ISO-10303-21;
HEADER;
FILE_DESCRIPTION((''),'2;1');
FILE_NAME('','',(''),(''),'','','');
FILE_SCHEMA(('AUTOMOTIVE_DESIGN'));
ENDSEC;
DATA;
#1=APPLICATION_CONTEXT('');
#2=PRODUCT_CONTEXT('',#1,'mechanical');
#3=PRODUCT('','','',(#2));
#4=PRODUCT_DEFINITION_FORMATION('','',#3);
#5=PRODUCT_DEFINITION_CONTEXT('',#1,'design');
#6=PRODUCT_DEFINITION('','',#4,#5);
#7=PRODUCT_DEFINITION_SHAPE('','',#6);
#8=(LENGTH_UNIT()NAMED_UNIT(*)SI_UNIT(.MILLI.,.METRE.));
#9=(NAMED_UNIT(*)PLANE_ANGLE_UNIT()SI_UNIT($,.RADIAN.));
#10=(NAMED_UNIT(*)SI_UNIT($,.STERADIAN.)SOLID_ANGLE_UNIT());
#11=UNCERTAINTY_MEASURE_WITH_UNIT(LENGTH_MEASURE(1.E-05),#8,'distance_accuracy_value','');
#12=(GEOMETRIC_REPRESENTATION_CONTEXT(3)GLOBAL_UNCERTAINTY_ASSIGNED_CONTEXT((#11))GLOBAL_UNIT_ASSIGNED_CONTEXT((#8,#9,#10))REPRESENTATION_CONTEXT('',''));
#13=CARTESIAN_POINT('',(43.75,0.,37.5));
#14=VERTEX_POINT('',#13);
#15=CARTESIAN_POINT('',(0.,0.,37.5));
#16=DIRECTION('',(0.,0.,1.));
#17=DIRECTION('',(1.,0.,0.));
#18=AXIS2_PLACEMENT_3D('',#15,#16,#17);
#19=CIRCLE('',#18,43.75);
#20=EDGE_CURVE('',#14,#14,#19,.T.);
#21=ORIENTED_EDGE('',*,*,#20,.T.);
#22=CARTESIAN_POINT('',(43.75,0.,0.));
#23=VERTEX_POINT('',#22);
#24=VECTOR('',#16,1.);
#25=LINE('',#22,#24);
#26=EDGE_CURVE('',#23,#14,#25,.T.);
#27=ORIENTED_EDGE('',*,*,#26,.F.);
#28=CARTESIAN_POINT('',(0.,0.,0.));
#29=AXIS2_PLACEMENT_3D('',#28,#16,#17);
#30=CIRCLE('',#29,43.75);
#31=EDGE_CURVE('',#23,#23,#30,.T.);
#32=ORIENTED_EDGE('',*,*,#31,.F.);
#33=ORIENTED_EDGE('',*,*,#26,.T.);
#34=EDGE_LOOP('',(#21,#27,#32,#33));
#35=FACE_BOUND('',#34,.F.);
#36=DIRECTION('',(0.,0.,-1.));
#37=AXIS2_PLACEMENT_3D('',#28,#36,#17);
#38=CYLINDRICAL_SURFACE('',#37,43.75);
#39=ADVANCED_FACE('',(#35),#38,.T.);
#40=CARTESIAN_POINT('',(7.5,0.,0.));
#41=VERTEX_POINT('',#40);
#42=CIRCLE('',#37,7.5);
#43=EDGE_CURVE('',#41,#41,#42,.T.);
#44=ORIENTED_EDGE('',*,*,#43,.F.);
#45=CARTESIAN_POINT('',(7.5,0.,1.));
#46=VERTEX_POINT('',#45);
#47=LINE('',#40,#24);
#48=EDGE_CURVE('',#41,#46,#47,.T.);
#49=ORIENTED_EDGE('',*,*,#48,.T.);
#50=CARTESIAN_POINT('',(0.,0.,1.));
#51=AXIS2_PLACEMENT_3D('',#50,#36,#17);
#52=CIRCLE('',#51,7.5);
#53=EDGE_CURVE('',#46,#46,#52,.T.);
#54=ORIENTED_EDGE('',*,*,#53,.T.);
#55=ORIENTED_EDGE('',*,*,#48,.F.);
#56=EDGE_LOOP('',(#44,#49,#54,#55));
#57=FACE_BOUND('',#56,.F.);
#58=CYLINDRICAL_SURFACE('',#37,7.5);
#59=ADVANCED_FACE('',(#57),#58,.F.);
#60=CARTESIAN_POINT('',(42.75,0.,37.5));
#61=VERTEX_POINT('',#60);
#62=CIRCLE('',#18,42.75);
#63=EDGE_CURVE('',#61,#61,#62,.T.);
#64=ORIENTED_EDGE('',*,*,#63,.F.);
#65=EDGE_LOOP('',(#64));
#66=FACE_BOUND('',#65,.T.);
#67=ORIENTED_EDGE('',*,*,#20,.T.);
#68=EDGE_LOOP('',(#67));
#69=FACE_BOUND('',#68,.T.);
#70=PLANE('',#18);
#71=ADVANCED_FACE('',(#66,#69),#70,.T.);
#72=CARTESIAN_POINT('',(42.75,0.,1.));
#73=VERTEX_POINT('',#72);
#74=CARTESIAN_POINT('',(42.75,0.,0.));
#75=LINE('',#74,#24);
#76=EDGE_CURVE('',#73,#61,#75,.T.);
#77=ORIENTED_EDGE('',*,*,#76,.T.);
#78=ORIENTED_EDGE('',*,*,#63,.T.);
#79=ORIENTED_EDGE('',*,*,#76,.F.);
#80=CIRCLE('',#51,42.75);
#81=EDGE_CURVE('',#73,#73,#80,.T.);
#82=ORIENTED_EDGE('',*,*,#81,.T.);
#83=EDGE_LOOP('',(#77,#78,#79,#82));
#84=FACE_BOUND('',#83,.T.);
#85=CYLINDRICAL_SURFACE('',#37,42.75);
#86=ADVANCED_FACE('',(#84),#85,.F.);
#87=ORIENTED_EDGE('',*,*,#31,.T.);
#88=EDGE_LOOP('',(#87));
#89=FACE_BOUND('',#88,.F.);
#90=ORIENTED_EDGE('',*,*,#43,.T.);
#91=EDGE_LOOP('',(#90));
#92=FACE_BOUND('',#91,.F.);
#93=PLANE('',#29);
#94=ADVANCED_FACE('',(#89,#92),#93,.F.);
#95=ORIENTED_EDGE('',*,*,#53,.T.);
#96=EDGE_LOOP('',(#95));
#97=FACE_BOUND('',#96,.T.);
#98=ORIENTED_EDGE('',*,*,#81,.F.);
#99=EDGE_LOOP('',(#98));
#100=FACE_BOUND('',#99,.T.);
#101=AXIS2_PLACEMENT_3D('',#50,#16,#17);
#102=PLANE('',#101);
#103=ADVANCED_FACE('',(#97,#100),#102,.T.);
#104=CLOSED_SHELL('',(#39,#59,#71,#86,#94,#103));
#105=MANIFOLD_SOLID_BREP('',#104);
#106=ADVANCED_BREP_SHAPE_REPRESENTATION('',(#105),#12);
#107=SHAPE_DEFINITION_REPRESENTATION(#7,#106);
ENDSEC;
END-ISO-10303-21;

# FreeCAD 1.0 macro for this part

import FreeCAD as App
import Part
import Sketcher

V = App.Vector


def faces_at(feature, points):
    """Names of the faces that lie closest to the given points."""
    faces = feature.Shape.Faces
    near = lambda p: min(range(len(faces)), key=lambda i: faces[i].distToShape(Part.Vertex(*p))[0])
    return sorted({f"Face{near(p) + 1}" for p in points})

doc = App.newDocument("Part")
params = doc.addObject("Spreadsheet::Sheet", "Params")
for row, (alias, value) in enumerate([
    ("sketch1_diameter", "87.5 mm"),
    ("pad1_length", "37.5 mm"),
    ("thickness_wall", "1 mm"),
    ("sketch2_diameter", "15 mm"),
    ("pocket1_length", "25.4 mm"),
], start=1):
    params.set(f"A{row}", alias)
    params.set(f"B{row}", "=" + value)
    params.setAlias(f"B{row}", alias)

body = doc.addObject("PartDesign::Body", "Body")

# Sketch on XY plane
sketch1 = body.newObject("Sketcher::SketchObject", "Sketch")
sketch1.AttachmentSupport = (doc.getObject("XY_Plane"), [""])
sketch1.MapMode = "FlatFace"
sketch1.addGeometry(Part.Circle(V(0, 0, 0), V(0, 0, 1), 44), False)
sketch1.addConstraint(Sketcher.Constraint("Coincident", 0, 3, -1, 1))
sketch1.addConstraint(Sketcher.Constraint("Diameter", 0, 87.5))
sketch1.setExpression("Constraints[1]", "Params.sketch1_diameter")
pad1 = body.newObject("PartDesign::Pad", "Pad")
pad1.Profile = sketch1
pad1.setExpression("Length", "Params.pad1_length")
doc.recompute()

thickness = body.newObject("PartDesign::Thickness", "Thickness")
thickness.Base = (pad1, faces_at(pad1, [(0, 0, 37.5)]))
thickness.setExpression("Value", "Params.thickness_wall")
thickness.Reversed = True
thickness.Join = "Arc"

# Sketch on XY plane
sketch2 = body.newObject("Sketcher::SketchObject", "Sketch001")
sketch2.AttachmentSupport = (doc.getObject("XY_Plane"), [""])
sketch2.MapMode = "FlatFace"
sketch2.addGeometry(Part.Circle(V(0, 0, 0), V(0, 0, 1), 8), False)
sketch2.addConstraint(Sketcher.Constraint("Coincident", 0, 3, -1, 1))
sketch2.addConstraint(Sketcher.Constraint("Diameter", 0, 15.0))
sketch2.setExpression("Constraints[1]", "Params.sketch2_diameter")
pocket1 = body.newObject("PartDesign::Pocket", "Pocket")
pocket1.Profile = sketch2
pocket1.setExpression("Length", "Params.pocket1_length")
pocket1.Reversed = True

doc.recompute()
